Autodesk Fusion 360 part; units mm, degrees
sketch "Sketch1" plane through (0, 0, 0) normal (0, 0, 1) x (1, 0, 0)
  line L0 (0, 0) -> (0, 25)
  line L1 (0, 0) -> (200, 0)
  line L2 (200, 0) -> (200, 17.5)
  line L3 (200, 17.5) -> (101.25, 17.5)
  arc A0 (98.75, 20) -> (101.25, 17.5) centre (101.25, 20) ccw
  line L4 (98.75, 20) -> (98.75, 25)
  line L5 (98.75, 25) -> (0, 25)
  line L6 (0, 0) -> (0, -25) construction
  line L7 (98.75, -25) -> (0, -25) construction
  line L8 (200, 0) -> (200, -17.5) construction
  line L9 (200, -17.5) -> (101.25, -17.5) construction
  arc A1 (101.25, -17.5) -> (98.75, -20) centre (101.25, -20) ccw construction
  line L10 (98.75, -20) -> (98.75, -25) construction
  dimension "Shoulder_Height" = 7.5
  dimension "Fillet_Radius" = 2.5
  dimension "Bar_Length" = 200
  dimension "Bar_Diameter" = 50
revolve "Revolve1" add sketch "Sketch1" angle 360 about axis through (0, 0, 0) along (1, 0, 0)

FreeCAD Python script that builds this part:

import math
import FreeCAD as App
import Part
import Sketcher

V = App.Vector
Q = App.Units.Quantity

doc = App.newDocument("Part")
body = doc.addObject("PartDesign::Body", "Body")

sketch1 = body.newObject("Sketcher::SketchObject", "Sketch")
sketch1.AttachmentSupport = (doc.getObject("XY_Plane"), [""])
sketch1.MapMode = "FlatFace"
sketch1.addGeometry([
    Part.LineSegment(V(0, 25, 0), V(0, 0, 0)),
    Part.LineSegment(V(0, 0, 0), V(200, 0, 0)),
    Part.LineSegment(V(200, 0, 0), V(200, 17.5, 0)),
    Part.LineSegment(V(200, 17.5, 0), V(101.2, 17.5, 0)),
    Part.ArcOfCircle(Part.Circle(V(101.2, 20, 0), V(0, 0, 1), 2.5), math.radians(180), math.radians(270)),
    Part.LineSegment(V(98.8, 20, 0), V(98.8, 25, 0)),
    Part.LineSegment(V(98.8, 25, 0), V(0, 25, 0)),
], False)
sketch1.addConstraint([
    Sketcher.Constraint("Coincident", 0, 2, 1, 1),
    Sketcher.Constraint("Coincident", 1, 2, 2, 1),
    Sketcher.Constraint("Coincident", 2, 2, 3, 1),
    Sketcher.Constraint("Tangent", 3, 2, 4, 2),
    Sketcher.Constraint("Tangent", 4, 1, 5, 1),
    Sketcher.Constraint("Coincident", 5, 2, 6, 1),
    Sketcher.Constraint("Coincident", 6, 2, 0, 1),
    Sketcher.Constraint("Vertical", 0),
    Sketcher.Constraint("Horizontal", 1),
    Sketcher.Constraint("Vertical", 2),
    Sketcher.Constraint("Horizontal", 3),
    Sketcher.Constraint("Vertical", 5),
    Sketcher.Constraint("Horizontal", 6),
    Sketcher.Constraint("Coincident", 0, 2, -1, 1),
    Sketcher.Constraint("Equal", 3, 6),
    Sketcher.Constraint("Radius", 4, Q("2.5 mm")),
    Sketcher.Constraint("DistanceX", 1, 1, 1, 2, Q("200 mm")),
    Sketcher.Constraint("DistanceY", 3, 2, 5, 2, Q("7.5 mm")),
    Sketcher.Constraint("DistanceY", 0, 2, 0, 1, Q("25 mm")),
])
revolution = body.newObject("PartDesign::Revolution", "Revolution")
revolution.Profile = sketch1
revolution.ReferenceAxis = (sketch1, ["H_Axis"])
revolution.Angle = 360

doc.recompute()
